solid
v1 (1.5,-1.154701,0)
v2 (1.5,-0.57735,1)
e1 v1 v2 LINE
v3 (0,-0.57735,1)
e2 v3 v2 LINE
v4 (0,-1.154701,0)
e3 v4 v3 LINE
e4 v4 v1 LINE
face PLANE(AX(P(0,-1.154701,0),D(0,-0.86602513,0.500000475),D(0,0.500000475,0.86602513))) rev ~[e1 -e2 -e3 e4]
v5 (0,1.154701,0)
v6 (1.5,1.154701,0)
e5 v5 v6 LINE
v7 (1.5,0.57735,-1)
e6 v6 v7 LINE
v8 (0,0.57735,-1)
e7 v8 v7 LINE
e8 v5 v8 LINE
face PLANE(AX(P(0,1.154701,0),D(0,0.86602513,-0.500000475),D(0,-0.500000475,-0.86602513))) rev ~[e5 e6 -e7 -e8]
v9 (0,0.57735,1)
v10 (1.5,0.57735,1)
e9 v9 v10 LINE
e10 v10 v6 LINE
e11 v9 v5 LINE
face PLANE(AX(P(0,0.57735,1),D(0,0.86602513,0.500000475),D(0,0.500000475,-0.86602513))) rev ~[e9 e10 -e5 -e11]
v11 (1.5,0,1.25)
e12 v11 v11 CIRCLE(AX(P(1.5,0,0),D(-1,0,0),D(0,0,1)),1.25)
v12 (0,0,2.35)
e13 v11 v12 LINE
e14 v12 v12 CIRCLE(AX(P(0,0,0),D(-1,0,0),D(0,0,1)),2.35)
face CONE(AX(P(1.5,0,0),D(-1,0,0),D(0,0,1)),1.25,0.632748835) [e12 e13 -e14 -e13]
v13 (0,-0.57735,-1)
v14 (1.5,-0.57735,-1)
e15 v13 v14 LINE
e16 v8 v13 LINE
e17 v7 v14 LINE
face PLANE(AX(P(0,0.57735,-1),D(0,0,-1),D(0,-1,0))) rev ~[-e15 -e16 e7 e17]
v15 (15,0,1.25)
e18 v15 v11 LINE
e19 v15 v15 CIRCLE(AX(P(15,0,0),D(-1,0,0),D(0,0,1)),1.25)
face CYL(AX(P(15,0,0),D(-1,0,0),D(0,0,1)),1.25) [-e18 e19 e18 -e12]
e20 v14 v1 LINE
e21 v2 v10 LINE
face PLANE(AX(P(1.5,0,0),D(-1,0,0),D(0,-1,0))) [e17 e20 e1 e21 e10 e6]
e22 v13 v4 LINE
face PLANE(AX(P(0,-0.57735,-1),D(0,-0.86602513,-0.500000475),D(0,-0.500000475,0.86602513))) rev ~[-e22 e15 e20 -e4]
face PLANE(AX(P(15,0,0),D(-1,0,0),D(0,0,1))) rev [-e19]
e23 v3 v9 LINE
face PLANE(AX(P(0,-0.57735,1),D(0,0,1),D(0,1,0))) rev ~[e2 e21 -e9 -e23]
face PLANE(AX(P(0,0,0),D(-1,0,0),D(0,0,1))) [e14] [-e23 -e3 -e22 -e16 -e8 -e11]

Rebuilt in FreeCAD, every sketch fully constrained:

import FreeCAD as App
import Part
import Sketcher
from FreeCAD import Vector


def add_polygon(sketch, points):
    """Adds a closed chain of lines whose ends are joined by coincident constraints."""
    first, n = sketch.GeometryCount, len(points)
    for a, b in zip(points, points[1:] + points[:1]):
        sketch.addGeometry(Part.LineSegment(App.Vector(*a, 0), App.Vector(*b, 0)), False)
    for i in range(n):
        sketch.addConstraint(Sketcher.Constraint("Coincident", first + i, 2, first + (i + 1) % n, 1))

doc = App.newDocument("Part")
params = doc.addObject("Spreadsheet::Sheet", "Params")
for row, (alias, value) in enumerate([
    ("sketch1_width", "15 mm"),
    ("sketch1_width2", "13.5 mm"),
    ("sketch1_height", "2.35 mm"),
    ("sketch1_height2", "1.25 mm"),
    ("revolution_angle", "360 deg"),
    ("pocket1_length", "1.5 mm"),
], start=1):
    params.set(f"A{row}", alias)
    params.set(f"B{row}", "=" + value)
    params.setAlias(f"B{row}", alias)

body = doc.addObject("PartDesign::Body", "Body")

# Sketch on XZ plane
sketch1 = body.newObject("Sketcher::SketchObject", "Sketch")
sketch1.AttachmentSupport = (doc.getObject("XZ_Plane"), [""])
sketch1.MapMode = "FlatFace"
add_polygon(sketch1, [(0, 2.4), (0, 0), (15, 0), (15, 1.2), (1.5, 1.2)])  # lines 0-4
sketch1.addConstraint(Sketcher.Constraint("Vertical", 0))
sketch1.addConstraint(Sketcher.Constraint("Horizontal", 1))
sketch1.addConstraint(Sketcher.Constraint("Vertical", 2))
sketch1.addConstraint(Sketcher.Constraint("Horizontal", 3))
sketch1.addConstraint(Sketcher.Constraint("Coincident", 0, 2, -1, 1))
sketch1.addConstraint(Sketcher.Constraint("DistanceX", 1, 1, 1, 2, 15.0))
sketch1.addConstraint(Sketcher.Constraint("DistanceX", 3, 2, 3, 1, 13.5))
sketch1.addConstraint(Sketcher.Constraint("DistanceY", 0, 2, 0, 1, 2.35))
sketch1.addConstraint(Sketcher.Constraint("DistanceY", 2, 1, 2, 2, 1.25))
sketch1.setExpression("Constraints[10]", "Params.sketch1_width")
sketch1.setExpression("Constraints[11]", "Params.sketch1_width2")
sketch1.setExpression("Constraints[12]", "Params.sketch1_height")
sketch1.setExpression("Constraints[13]", "Params.sketch1_height2")
revolution = body.newObject("PartDesign::Revolution", "Revolution")
revolution.Profile = sketch1
revolution.ReferenceAxis = (sketch1, ["H_Axis"])
revolution.setExpression("Angle", "Params.revolution_angle")

# Sketch on YZ plane
sketch2 = body.newObject("Sketcher::SketchObject", "Sketch001")
sketch2.AttachmentSupport = (doc.getObject("YZ_Plane"), [""])
sketch2.MapMode = "FlatFace"
add_polygon(sketch2, [(-0.6, -1), (-1.2, 0), (-0.6, 1), (0.6, 1), (1.2, 0), (0.6, -1)])  # lines 0-5
sketch2.addConstraint(Sketcher.Constraint("Horizontal", 2))
sketch2.addConstraint(Sketcher.Constraint("Horizontal", 5))
sketch2.addConstraint(Sketcher.Constraint("Symmetric", 0, 2, 3, 2, -1, 1))
sketch2.addConstraint(Sketcher.Constraint("Symmetric", 1, 2, 4, 2, -1, 1))
sketch2.addConstraint(Sketcher.Constraint("PointOnObject", 0, 2, -1))
sketch2.addConstraint(Sketcher.Constraint("Parallel", 0, 3))
sketch2.addConstraint(Sketcher.Constraint("Vertical", 2, 2, 4, 2))
sketch2.addConstraint(Sketcher.Constraint("DistanceY", -1, 1, 1, 2, 1.0))
sketch2.addConstraint(Sketcher.Constraint("DistanceX", 2, 1, 2, 2, 1.1547))
sketch2.addConstraint(Sketcher.Constraint("Distance", 0, 1.154701))
pocket1 = body.newObject("PartDesign::Pocket", "Pocket")
pocket1.Profile = sketch2
pocket1.setExpression("Length", "Params.pocket1_length")
pocket1.Reversed = True

doc.recompute()
